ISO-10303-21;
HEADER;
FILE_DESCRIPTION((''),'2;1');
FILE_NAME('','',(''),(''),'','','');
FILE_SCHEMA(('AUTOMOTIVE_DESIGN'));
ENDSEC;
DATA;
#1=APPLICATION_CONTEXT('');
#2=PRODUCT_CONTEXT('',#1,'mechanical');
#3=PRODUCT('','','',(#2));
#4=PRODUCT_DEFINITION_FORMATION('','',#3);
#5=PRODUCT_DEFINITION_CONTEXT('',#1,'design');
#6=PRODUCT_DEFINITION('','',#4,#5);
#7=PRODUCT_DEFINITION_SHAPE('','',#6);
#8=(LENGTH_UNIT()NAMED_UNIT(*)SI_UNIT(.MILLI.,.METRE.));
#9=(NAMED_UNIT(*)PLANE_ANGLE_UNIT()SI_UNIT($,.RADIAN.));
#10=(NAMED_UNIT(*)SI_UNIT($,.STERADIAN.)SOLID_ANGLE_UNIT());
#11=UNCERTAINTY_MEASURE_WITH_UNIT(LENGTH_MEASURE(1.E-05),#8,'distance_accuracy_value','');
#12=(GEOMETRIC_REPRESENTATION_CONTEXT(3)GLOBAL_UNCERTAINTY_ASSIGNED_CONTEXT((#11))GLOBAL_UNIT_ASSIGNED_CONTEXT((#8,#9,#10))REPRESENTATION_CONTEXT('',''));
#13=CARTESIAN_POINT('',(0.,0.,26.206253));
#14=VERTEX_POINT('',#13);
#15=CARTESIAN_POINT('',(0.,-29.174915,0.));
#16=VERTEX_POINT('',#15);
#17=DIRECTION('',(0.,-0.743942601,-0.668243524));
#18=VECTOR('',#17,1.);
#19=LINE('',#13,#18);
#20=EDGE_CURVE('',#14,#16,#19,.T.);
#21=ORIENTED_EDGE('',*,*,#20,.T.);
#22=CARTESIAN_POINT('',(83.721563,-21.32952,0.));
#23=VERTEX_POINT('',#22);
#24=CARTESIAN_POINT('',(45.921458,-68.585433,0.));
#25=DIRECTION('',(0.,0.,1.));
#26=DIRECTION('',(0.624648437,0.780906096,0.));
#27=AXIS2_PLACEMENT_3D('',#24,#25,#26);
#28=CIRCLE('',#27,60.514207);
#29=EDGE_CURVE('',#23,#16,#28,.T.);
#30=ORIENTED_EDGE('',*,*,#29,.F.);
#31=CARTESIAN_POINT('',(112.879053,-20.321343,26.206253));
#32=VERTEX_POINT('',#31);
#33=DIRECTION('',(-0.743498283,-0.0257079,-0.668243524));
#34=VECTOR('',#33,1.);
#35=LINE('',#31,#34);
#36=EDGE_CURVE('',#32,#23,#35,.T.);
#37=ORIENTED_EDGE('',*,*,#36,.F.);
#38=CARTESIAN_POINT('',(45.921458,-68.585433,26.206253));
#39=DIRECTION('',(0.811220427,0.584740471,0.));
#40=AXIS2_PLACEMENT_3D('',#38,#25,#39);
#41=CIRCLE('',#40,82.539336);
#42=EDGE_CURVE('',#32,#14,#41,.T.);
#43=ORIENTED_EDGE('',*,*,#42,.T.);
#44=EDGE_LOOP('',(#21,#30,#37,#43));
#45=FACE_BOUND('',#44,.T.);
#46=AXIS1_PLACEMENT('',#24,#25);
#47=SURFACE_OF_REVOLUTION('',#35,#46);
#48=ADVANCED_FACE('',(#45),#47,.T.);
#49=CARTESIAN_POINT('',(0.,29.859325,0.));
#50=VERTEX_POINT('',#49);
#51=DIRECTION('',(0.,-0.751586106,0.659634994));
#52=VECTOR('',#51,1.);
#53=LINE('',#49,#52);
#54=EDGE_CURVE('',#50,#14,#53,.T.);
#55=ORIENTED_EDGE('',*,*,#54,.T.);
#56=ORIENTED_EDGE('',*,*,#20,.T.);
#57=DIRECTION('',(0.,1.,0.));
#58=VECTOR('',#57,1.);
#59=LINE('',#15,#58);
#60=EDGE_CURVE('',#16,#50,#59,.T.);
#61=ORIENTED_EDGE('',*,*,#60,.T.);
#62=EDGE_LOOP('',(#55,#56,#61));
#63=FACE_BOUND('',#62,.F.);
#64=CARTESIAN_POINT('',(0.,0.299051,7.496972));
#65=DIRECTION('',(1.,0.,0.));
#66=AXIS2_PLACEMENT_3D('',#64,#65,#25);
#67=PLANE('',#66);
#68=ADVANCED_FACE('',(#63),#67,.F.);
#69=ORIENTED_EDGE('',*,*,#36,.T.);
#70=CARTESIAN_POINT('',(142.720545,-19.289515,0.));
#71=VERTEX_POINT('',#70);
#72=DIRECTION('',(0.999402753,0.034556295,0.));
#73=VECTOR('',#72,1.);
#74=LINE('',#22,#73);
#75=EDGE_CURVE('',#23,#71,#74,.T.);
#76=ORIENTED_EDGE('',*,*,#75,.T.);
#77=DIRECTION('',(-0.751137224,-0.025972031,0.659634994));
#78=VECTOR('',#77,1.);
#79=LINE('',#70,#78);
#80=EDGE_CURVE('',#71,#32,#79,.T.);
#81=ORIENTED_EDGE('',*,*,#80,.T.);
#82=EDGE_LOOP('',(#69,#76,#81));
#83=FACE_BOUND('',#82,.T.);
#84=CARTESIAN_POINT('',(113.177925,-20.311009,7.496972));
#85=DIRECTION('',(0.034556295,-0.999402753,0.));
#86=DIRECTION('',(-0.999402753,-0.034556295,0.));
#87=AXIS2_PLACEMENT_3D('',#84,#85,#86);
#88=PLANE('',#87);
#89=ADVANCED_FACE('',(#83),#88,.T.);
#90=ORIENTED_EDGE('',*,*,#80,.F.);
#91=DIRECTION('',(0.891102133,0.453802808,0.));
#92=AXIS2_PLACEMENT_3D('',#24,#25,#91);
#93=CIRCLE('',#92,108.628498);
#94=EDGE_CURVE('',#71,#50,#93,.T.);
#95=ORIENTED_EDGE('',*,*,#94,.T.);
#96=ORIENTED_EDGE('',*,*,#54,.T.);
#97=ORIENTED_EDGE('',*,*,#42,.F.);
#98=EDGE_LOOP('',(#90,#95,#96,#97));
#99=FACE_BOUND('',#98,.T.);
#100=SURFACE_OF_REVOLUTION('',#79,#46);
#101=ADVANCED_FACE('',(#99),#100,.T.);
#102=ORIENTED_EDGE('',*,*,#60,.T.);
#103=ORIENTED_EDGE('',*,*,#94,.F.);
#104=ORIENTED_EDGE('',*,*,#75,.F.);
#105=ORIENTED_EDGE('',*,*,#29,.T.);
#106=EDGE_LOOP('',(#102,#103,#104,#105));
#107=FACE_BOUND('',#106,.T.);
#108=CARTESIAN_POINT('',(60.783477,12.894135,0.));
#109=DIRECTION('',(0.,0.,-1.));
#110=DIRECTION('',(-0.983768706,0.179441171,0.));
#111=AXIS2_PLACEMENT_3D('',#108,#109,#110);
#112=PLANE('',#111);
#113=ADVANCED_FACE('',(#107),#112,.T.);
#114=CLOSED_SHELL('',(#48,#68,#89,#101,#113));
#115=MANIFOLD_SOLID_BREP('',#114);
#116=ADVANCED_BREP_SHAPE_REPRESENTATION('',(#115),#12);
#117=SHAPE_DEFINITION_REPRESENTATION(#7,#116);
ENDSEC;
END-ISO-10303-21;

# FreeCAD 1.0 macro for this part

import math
import FreeCAD as App
import Part
import Sketcher
Q = App.Units.Quantity


def add_polygon(sketch, points):
    """Adds a closed chain of lines whose ends are joined by coincident constraints."""
    first, n = sketch.GeometryCount, len(points)
    for a, b in zip(points, points[1:] + points[:1]):
        sketch.addGeometry(Part.LineSegment(App.Vector(*a, 0), App.Vector(*b, 0)), False)
    for i in range(n):
        sketch.addConstraint(Sketcher.Constraint("Coincident", first + i, 2, first + (i + 1) % n, 1))

doc = App.newDocument("Part")
body = doc.addObject("PartDesign::Body", "Body")

sketch1 = body.newObject("Sketcher::SketchObject", "Sketch")
sketch1.AttachmentSupport = (doc.getObject("YZ_Plane"), [""])
sketch1.MapMode = "FlatFace"
add_polygon(sketch1, [(-29, 0), (30, 0), (0, 26)])
sketch1.addConstraint([
    Sketcher.Constraint("Horizontal", 0),
    Sketcher.Constraint("PointOnObject", 0, 2, -1),
    Sketcher.Constraint("PointOnObject", 1, 2, -2),
    Sketcher.Constraint("DistanceX", 0, 1, 0, 2, Q("59.03424 mm")),
    Sketcher.Constraint("Distance", 2, Q("39.216621 mm")),
    Sketcher.Constraint("Distance", 1, Q("39.728415 mm")),
])

sketch2 = body.newObject("Sketcher::SketchObject", "Sketch001")
sketch2.AttachmentSupport = (doc.getObject("XY_Plane"), [""])
sketch2.MapMode = "FlatFace"
sketch2.addGeometry(Part.ArcOfCircle(Part.Circle(App.Vector(46, -69, 0), App.Vector(0, 0, 1), 83), math.radians(36), math.radians(124)), False)
sketch2.addConstraint([
    Sketcher.Constraint("Coincident", 0, 2, -1, 1),
    Sketcher.Constraint("Radius", 0, Q("82.539336 mm")),
    Sketcher.Constraint("DistanceY", 0, 3, 0, 1, Q("48.26409 mm")),
    Sketcher.Constraint("DistanceX", -1, 1, 0, 3, Q("45.921458 mm")),
])
doc.recompute()

additivepipe = body.newObject("PartDesign::AdditivePipe", "AdditivePipe")
additivepipe.Profile = sketch1
additivepipe.Spine = (sketch2, ["Edge1"])

doc.recompute()
